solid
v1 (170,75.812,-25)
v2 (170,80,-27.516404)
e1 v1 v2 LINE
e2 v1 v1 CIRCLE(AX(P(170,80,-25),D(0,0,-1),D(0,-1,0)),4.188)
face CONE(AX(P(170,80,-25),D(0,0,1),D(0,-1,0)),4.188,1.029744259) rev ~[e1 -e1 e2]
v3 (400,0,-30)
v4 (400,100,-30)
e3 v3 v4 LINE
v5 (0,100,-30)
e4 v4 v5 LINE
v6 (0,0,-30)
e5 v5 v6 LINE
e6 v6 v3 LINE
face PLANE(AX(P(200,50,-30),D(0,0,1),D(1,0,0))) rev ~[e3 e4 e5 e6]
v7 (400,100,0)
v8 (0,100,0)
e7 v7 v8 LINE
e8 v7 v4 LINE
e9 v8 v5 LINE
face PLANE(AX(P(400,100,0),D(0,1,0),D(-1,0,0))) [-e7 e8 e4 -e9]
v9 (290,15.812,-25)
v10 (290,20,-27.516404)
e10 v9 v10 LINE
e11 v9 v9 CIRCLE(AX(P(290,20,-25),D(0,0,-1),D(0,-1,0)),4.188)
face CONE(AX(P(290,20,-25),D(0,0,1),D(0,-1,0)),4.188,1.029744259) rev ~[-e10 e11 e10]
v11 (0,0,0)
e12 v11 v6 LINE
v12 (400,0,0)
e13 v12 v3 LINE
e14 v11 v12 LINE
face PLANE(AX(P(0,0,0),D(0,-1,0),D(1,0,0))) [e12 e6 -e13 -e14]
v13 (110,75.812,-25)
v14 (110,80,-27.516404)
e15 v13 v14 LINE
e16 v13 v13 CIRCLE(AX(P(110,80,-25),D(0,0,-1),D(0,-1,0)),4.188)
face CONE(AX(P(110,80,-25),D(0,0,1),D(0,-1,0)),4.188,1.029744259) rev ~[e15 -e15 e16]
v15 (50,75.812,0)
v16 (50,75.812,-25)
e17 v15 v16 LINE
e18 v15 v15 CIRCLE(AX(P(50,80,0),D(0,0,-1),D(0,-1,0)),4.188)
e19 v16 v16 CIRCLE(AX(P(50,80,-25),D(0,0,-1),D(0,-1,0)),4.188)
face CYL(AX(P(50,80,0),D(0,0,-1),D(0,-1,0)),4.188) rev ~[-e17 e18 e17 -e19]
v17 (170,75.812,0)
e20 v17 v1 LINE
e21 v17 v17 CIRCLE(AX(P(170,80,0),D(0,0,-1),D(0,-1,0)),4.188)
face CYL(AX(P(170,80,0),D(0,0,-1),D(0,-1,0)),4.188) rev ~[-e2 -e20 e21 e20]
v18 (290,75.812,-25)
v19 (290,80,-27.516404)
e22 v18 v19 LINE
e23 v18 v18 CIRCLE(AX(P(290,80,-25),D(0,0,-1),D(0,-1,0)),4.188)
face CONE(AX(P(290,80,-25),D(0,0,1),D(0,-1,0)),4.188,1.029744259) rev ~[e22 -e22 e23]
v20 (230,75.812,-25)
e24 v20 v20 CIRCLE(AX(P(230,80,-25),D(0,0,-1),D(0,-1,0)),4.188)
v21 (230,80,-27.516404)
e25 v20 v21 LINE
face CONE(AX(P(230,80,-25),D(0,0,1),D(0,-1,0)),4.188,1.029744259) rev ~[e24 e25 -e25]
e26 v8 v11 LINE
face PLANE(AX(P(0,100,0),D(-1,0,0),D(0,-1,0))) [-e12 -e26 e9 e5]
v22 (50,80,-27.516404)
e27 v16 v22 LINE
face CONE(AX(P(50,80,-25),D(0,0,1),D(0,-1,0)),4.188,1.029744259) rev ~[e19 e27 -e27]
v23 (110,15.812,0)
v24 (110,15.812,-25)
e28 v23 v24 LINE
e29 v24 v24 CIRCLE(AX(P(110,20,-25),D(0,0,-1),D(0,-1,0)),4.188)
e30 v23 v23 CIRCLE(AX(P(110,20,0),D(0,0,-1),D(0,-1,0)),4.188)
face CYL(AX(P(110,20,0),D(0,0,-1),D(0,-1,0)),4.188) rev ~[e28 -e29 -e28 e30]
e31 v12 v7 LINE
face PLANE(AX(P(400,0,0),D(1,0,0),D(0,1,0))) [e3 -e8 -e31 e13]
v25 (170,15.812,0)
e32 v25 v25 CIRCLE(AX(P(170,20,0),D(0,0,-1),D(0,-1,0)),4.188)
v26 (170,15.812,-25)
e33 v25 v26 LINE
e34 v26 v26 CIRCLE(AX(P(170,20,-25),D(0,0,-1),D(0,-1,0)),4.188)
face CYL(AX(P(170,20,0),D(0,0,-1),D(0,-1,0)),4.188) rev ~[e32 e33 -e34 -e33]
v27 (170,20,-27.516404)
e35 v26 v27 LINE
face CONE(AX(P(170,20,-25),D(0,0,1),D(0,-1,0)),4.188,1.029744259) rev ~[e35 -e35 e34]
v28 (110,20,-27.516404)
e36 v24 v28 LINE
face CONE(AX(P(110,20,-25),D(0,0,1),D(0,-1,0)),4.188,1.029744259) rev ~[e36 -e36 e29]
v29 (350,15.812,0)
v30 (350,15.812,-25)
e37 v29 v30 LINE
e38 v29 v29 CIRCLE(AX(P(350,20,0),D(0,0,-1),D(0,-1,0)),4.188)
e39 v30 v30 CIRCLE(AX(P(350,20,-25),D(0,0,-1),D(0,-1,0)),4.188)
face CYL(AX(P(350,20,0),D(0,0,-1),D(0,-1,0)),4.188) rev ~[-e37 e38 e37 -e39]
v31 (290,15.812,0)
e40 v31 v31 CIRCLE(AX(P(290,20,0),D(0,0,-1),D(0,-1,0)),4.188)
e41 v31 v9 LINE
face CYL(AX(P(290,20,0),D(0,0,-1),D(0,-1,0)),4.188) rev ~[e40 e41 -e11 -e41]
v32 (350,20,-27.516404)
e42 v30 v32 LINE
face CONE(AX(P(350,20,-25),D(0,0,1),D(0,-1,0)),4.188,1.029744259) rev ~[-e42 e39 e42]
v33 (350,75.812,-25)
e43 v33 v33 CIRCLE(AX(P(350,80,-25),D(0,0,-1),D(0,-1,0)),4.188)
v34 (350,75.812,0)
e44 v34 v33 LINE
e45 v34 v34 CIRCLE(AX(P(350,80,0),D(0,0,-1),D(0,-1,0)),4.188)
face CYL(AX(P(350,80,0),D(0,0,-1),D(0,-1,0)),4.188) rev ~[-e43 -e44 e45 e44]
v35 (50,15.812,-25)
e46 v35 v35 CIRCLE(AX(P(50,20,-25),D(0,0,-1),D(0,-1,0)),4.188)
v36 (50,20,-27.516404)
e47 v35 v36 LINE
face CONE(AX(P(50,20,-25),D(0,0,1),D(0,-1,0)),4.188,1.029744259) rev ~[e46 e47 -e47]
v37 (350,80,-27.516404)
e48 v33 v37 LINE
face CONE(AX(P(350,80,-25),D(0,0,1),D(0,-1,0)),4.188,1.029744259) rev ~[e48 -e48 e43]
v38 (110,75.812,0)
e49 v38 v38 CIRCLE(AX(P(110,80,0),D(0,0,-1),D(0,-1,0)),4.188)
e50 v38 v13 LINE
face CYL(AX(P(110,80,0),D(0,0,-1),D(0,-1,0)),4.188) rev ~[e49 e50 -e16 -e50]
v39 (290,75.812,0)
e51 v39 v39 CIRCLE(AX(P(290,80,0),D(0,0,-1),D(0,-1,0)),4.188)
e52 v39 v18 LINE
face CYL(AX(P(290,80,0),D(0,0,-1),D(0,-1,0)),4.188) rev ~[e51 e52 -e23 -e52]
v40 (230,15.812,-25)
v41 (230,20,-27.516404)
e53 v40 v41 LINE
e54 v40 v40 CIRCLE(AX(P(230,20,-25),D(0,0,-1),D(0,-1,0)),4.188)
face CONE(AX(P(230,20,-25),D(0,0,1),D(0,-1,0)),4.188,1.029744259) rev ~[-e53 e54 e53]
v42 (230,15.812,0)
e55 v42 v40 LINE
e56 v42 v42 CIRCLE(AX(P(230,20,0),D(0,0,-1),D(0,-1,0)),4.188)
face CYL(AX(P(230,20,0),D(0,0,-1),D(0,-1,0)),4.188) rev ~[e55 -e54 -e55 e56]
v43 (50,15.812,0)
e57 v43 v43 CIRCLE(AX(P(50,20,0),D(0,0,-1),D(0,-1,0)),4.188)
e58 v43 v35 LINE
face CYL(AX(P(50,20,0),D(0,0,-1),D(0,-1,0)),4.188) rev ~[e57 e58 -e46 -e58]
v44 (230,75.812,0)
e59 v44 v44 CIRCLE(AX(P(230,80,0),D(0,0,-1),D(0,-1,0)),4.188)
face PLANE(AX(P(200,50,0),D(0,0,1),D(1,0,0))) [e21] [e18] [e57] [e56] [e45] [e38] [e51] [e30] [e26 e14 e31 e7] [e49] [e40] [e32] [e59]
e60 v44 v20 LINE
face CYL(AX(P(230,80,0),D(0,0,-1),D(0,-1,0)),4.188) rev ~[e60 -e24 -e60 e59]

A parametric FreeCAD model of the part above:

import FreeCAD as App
import Part
import Sketcher


def add_polygon(sketch, points):
    """Adds a closed chain of lines whose ends are joined by coincident constraints."""
    first, n = sketch.GeometryCount, len(points)
    for a, b in zip(points, points[1:] + points[:1]):
        sketch.addGeometry(Part.LineSegment(App.Vector(*a, 0), App.Vector(*b, 0)), False)
    for i in range(n):
        sketch.addConstraint(Sketcher.Constraint("Coincident", first + i, 2, first + (i + 1) % n, 1))

doc = App.newDocument("Part")
body = doc.addObject("PartDesign::Body", "Body")

sketch1 = doc.addObject("Sketcher::SketchObject", "Sketch")
body.addObject(sketch1)
sketch1.AttachmentSupport = (doc.XY_Plane, [""])
sketch1.MapMode = "FlatFace"
add_polygon(sketch1, [(0, 100), (0, 0), (400, 0), (400, 100)])
sketch1.addConstraint(Sketcher.Constraint("Vertical", 0))
sketch1.addConstraint(Sketcher.Constraint("Horizontal", 1))
sketch1.addConstraint(Sketcher.Constraint("Vertical", 2))
sketch1.addConstraint(Sketcher.Constraint("Horizontal", 3))
sketch1.addConstraint(Sketcher.Constraint("Coincident", 0, 2, -1, 1))
sketch1.addConstraint(Sketcher.Constraint("DistanceX", 1, 1, 1, 2, 400.0))
sketch1.addConstraint(Sketcher.Constraint("DistanceY", 0, 2, 0, 1, 100.0))
pad1 = doc.addObject("PartDesign::Pad", "Pad")
body.addObject(pad1)
pad1.Profile = sketch1
pad1.Length = 30
pad1.Reversed = True

sketch2 = doc.addObject("Sketcher::SketchObject", "Sketch001")
body.addObject(sketch2)
sketch2.AttachmentSupport = (doc.XY_Plane, [""])
sketch2.MapMode = "FlatFace"
sketch2.addGeometry(Part.Circle(App.Vector(50, 80, 0), App.Vector(0, 0, 1), 4.2), False)
sketch2.addConstraint(Sketcher.Constraint("Diameter", 0, 8.376))
sketch2.addConstraint(Sketcher.Constraint("DistanceX", -1, 1, 0, 3, 50.0))
sketch2.addConstraint(Sketcher.Constraint("DistanceY", -1, 1, 0, 3, 80.0))
doc.recompute()
hole = doc.addObject("PartDesign::Hole", "Hole")
body.addObject(hole)
hole.Profile = sketch2
hole.ThreadType = "None"
hole.Diameter = 8.376
hole.DepthType = "Dimension"
hole.Depth = 25
hole.DrillPoint = "Angled"
hole.DrillPointAngle = 118

sketch3 = doc.addObject("Sketcher::SketchObject", "Sketch002")
body.addObject(sketch3)
sketch3.AttachmentSupport = (doc.XY_Plane, [""])
sketch3.MapMode = "FlatFace"
sketch3.addGeometry(Part.Circle(App.Vector(50, 20, 0), App.Vector(0, 0, 1), 4.2), False)
sketch3.addConstraint(Sketcher.Constraint("Diameter", 0, 8.376))
sketch3.addConstraint(Sketcher.Constraint("DistanceX", -1, 1, 0, 3, 50.0))
sketch3.addConstraint(Sketcher.Constraint("DistanceY", -1, 1, 0, 3, 20.0))
doc.recompute()
hole2 = doc.addObject("PartDesign::Hole", "Hole001")
body.addObject(hole2)
hole2.Profile = sketch3
hole2.ThreadType = "None"
hole2.Diameter = 8.376
hole2.DepthType = "Dimension"
hole2.Depth = 25
hole2.DrillPoint = "Angled"
hole2.DrillPointAngle = 118

sketch4 = doc.addObject("Sketcher::SketchObject", "Sketch003")
body.addObject(sketch4)
sketch4.AttachmentSupport = (doc.XY_Plane, [""])
sketch4.MapMode = "FlatFace"
sketch4.addGeometry(Part.Circle(App.Vector(110, 80, 0), App.Vector(0, 0, 1), 4.2), False)
sketch4.addConstraint(Sketcher.Constraint("Diameter", 0, 8.376))
sketch4.addConstraint(Sketcher.Constraint("DistanceX", -1, 1, 0, 3, 110.0))
sketch4.addConstraint(Sketcher.Constraint("DistanceY", -1, 1, 0, 3, 80.0))
doc.recompute()
hole3 = doc.addObject("PartDesign::Hole", "Hole002")
body.addObject(hole3)
hole3.Profile = sketch4
hole3.ThreadType = "None"
hole3.Diameter = 8.376
hole3.DepthType = "Dimension"
hole3.Depth = 25
hole3.DrillPoint = "Angled"
hole3.DrillPointAngle = 118

sketch5 = doc.addObject("Sketcher::SketchObject", "Sketch004")
body.addObject(sketch5)
sketch5.AttachmentSupport = (doc.XY_Plane, [""])
sketch5.MapMode = "FlatFace"
sketch5.addGeometry(Part.Circle(App.Vector(110, 20, 0), App.Vector(0, 0, 1), 4.2), False)
sketch5.addConstraint(Sketcher.Constraint("Diameter", 0, 8.376))
sketch5.addConstraint(Sketcher.Constraint("DistanceX", -1, 1, 0, 3, 110.0))
sketch5.addConstraint(Sketcher.Constraint("DistanceY", -1, 1, 0, 3, 20.0))
doc.recompute()
hole4 = doc.addObject("PartDesign::Hole", "Hole003")
body.addObject(hole4)
hole4.Profile = sketch5
hole4.ThreadType = "None"
hole4.Diameter = 8.376
hole4.DepthType = "Dimension"
hole4.Depth = 25
hole4.DrillPoint = "Angled"
hole4.DrillPointAngle = 118

sketch6 = doc.addObject("Sketcher::SketchObject", "Sketch005")
body.addObject(sketch6)
sketch6.AttachmentSupport = (doc.XY_Plane, [""])
sketch6.MapMode = "FlatFace"
sketch6.addGeometry(Part.Circle(App.Vector(170, 80, 0), App.Vector(0, 0, 1), 4.2), False)
sketch6.addConstraint(Sketcher.Constraint("Diameter", 0, 8.376))
sketch6.addConstraint(Sketcher.Constraint("DistanceX", -1, 1, 0, 3, 170.0))
sketch6.addConstraint(Sketcher.Constraint("DistanceY", -1, 1, 0, 3, 80.0))
doc.recompute()
hole5 = doc.addObject("PartDesign::Hole", "Hole004")
body.addObject(hole5)
hole5.Profile = sketch6
hole5.ThreadType = "None"
hole5.Diameter = 8.376
hole5.DepthType = "Dimension"
hole5.Depth = 25
hole5.DrillPoint = "Angled"
hole5.DrillPointAngle = 118

sketch7 = doc.addObject("Sketcher::SketchObject", "Sketch006")
body.addObject(sketch7)
sketch7.AttachmentSupport = (doc.XY_Plane, [""])
sketch7.MapMode = "FlatFace"
sketch7.addGeometry(Part.Circle(App.Vector(230, 80, 0), App.Vector(0, 0, 1), 4.2), False)
sketch7.addConstraint(Sketcher.Constraint("Diameter", 0, 8.376))
sketch7.addConstraint(Sketcher.Constraint("DistanceX", -1, 1, 0, 3, 230.0))
sketch7.addConstraint(Sketcher.Constraint("DistanceY", -1, 1, 0, 3, 80.0))
doc.recompute()
hole6 = doc.addObject("PartDesign::Hole", "Hole005")
body.addObject(hole6)
hole6.Profile = sketch7
hole6.ThreadType = "None"
hole6.Diameter = 8.376
hole6.DepthType = "Dimension"
hole6.Depth = 25
hole6.DrillPoint = "Angled"
hole6.DrillPointAngle = 118

sketch8 = doc.addObject("Sketcher::SketchObject", "Sketch007")
body.addObject(sketch8)
sketch8.AttachmentSupport = (doc.XY_Plane, [""])
sketch8.MapMode = "FlatFace"
sketch8.addGeometry(Part.Circle(App.Vector(170, 20, 0), App.Vector(0, 0, 1), 4.2), False)
sketch8.addConstraint(Sketcher.Constraint("Diameter", 0, 8.376))
sketch8.addConstraint(Sketcher.Constraint("DistanceX", -1, 1, 0, 3, 170.0))
sketch8.addConstraint(Sketcher.Constraint("DistanceY", -1, 1, 0, 3, 20.0))
doc.recompute()
hole7 = doc.addObject("PartDesign::Hole", "Hole006")
body.addObject(hole7)
hole7.Profile = sketch8
hole7.ThreadType = "None"
hole7.Diameter = 8.376
hole7.DepthType = "Dimension"
hole7.Depth = 25
hole7.DrillPoint = "Angled"
hole7.DrillPointAngle = 118

sketch9 = doc.addObject("Sketcher::SketchObject", "Sketch008")
body.addObject(sketch9)
sketch9.AttachmentSupport = (doc.XY_Plane, [""])
sketch9.MapMode = "FlatFace"
sketch9.addGeometry(Part.Circle(App.Vector(230, 20, 0), App.Vector(0, 0, 1), 4.2), False)
sketch9.addConstraint(Sketcher.Constraint("Diameter", 0, 8.376))
sketch9.addConstraint(Sketcher.Constraint("DistanceX", -1, 1, 0, 3, 230.0))
sketch9.addConstraint(Sketcher.Constraint("DistanceY", -1, 1, 0, 3, 20.0))
doc.recompute()
hole8 = doc.addObject("PartDesign::Hole", "Hole007")
body.addObject(hole8)
hole8.Profile = sketch9
hole8.ThreadType = "None"
hole8.Diameter = 8.376
hole8.DepthType = "Dimension"
hole8.Depth = 25
hole8.DrillPoint = "Angled"
hole8.DrillPointAngle = 118

sketch10 = doc.addObject("Sketcher::SketchObject", "Sketch009")
body.addObject(sketch10)
sketch10.AttachmentSupport = (doc.XY_Plane, [""])
sketch10.MapMode = "FlatFace"
sketch10.addGeometry(Part.Circle(App.Vector(290, 80, 0), App.Vector(0, 0, 1), 4.2), False)
sketch10.addConstraint(Sketcher.Constraint("Diameter", 0, 8.376))
sketch10.addConstraint(Sketcher.Constraint("DistanceX", -1, 1, 0, 3, 290.0))
sketch10.addConstraint(Sketcher.Constraint("DistanceY", -1, 1, 0, 3, 80.0))
doc.recompute()
hole9 = doc.addObject("PartDesign::Hole", "Hole008")
body.addObject(hole9)
hole9.Profile = sketch10
hole9.ThreadType = "None"
hole9.Diameter = 8.376
hole9.DepthType = "Dimension"
hole9.Depth = 25
hole9.DrillPoint = "Angled"
hole9.DrillPointAngle = 118

sketch11 = doc.addObject("Sketcher::SketchObject", "Sketch010")
body.addObject(sketch11)
sketch11.AttachmentSupport = (doc.XY_Plane, [""])
sketch11.MapMode = "FlatFace"
sketch11.addGeometry(Part.Circle(App.Vector(350, 80, 0), App.Vector(0, 0, 1), 4.2), False)
sketch11.addConstraint(Sketcher.Constraint("Diameter", 0, 8.376))
sketch11.addConstraint(Sketcher.Constraint("DistanceX", -1, 1, 0, 3, 350.0))
sketch11.addConstraint(Sketcher.Constraint("DistanceY", -1, 1, 0, 3, 80.0))
doc.recompute()
hole10 = doc.addObject("PartDesign::Hole", "Hole009")
body.addObject(hole10)
hole10.Profile = sketch11
hole10.ThreadType = "None"
hole10.Diameter = 8.376
hole10.DepthType = "Dimension"
hole10.Depth = 25
hole10.DrillPoint = "Angled"
hole10.DrillPointAngle = 118

sketch12 = doc.addObject("Sketcher::SketchObject", "Sketch011")
body.addObject(sketch12)
sketch12.AttachmentSupport = (doc.XY_Plane, [""])
sketch12.MapMode = "FlatFace"
sketch12.addGeometry(Part.Circle(App.Vector(290, 20, 0), App.Vector(0, 0, 1), 4.2), False)
sketch12.addConstraint(Sketcher.Constraint("Diameter", 0, 8.376))
sketch12.addConstraint(Sketcher.Constraint("DistanceX", -1, 1, 0, 3, 290.0))
sketch12.addConstraint(Sketcher.Constraint("DistanceY", -1, 1, 0, 3, 20.0))
doc.recompute()
hole11 = doc.addObject("PartDesign::Hole", "Hole010")
body.addObject(hole11)
hole11.Profile = sketch12
hole11.ThreadType = "None"
hole11.Diameter = 8.376
hole11.DepthType = "Dimension"
hole11.Depth = 25
hole11.DrillPoint = "Angled"
hole11.DrillPointAngle = 118

sketch13 = doc.addObject("Sketcher::SketchObject", "Sketch012")
body.addObject(sketch13)
sketch13.AttachmentSupport = (doc.XY_Plane, [""])
sketch13.MapMode = "FlatFace"
sketch13.addGeometry(Part.Circle(App.Vector(350, 20, 0), App.Vector(0, 0, 1), 4.2), False)
sketch13.addConstraint(Sketcher.Constraint("Diameter", 0, 8.376))
sketch13.addConstraint(Sketcher.Constraint("DistanceX", -1, 1, 0, 3, 350.0))
sketch13.addConstraint(Sketcher.Constraint("DistanceY", -1, 1, 0, 3, 20.0))
doc.recompute()
hole12 = doc.addObject("PartDesign::Hole", "Hole011")
body.addObject(hole12)
hole12.Profile = sketch13
hole12.ThreadType = "None"
hole12.Diameter = 8.376
hole12.DepthType = "Dimension"
hole12.Depth = 25
hole12.DrillPoint = "Angled"
hole12.DrillPointAngle = 118

doc.recompute()
